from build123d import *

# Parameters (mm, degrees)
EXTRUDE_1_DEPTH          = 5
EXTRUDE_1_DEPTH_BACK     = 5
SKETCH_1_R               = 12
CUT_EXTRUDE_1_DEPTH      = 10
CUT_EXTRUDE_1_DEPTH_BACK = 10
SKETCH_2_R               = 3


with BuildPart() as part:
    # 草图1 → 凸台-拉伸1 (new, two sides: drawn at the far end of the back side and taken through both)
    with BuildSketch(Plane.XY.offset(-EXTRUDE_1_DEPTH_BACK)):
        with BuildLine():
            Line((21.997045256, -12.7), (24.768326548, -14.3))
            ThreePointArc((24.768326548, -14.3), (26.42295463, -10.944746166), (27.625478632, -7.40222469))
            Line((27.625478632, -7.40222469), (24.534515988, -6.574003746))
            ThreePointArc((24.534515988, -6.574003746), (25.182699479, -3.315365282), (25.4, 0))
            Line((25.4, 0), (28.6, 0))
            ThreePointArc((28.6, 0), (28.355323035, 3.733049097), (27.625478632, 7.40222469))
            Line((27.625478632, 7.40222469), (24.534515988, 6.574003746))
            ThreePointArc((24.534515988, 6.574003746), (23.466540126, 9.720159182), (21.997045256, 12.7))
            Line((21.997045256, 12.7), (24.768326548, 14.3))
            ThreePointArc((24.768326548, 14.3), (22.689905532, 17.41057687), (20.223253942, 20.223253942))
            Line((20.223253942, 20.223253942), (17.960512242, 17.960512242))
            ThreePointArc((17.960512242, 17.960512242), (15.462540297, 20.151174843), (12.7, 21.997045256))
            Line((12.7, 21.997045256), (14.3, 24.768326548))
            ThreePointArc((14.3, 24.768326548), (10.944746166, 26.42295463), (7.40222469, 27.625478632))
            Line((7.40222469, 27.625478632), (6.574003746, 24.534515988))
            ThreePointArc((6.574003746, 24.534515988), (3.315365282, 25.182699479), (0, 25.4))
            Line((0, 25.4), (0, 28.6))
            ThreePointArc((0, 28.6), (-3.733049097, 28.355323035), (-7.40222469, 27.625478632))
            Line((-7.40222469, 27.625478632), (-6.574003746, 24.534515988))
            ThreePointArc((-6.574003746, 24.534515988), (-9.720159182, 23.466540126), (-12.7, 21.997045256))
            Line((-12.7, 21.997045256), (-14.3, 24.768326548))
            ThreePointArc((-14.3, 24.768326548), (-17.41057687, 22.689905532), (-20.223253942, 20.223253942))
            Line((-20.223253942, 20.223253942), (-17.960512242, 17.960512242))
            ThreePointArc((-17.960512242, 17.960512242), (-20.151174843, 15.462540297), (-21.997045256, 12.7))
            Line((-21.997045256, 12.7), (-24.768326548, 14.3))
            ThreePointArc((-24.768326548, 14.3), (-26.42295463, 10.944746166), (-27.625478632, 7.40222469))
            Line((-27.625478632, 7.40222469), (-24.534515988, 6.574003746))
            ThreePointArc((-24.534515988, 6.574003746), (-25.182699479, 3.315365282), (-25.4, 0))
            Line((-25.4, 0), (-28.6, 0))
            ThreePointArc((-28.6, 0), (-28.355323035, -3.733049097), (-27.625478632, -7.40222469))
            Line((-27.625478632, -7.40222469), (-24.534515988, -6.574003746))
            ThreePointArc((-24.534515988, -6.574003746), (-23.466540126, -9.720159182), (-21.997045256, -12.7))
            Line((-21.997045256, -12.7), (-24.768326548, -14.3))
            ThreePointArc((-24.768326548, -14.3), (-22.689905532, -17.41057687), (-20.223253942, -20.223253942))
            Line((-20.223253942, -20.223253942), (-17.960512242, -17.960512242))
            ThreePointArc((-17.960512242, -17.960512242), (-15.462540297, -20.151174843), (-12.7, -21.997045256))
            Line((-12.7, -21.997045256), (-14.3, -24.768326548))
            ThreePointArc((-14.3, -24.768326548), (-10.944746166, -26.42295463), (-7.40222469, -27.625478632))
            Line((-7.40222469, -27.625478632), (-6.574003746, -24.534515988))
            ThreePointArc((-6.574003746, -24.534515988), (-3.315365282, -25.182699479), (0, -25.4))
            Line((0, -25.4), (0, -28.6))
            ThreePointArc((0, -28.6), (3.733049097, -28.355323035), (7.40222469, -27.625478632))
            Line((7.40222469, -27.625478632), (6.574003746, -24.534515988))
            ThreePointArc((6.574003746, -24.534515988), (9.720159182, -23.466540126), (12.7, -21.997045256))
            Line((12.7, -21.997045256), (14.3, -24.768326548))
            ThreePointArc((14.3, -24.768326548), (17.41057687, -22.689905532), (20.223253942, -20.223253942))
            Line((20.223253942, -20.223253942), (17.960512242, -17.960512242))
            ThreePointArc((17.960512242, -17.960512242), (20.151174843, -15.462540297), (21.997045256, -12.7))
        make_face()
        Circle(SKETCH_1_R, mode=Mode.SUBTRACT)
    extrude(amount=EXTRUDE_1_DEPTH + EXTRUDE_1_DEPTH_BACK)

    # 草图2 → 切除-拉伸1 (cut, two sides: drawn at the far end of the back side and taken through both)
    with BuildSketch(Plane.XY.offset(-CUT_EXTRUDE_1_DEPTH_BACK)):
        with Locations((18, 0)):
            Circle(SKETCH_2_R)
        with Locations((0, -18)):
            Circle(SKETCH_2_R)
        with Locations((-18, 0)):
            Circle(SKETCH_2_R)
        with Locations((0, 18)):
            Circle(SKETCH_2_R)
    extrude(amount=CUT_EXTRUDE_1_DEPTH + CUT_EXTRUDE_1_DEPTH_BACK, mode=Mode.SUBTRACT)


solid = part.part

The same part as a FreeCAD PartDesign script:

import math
import FreeCAD as App
import Part
import Sketcher
Q = App.Units.Quantity

doc = App.newDocument("Part")
body = doc.addObject("PartDesign::Body", "Body")

# Sketch on XY plane
sketch1 = body.newObject("Sketcher::SketchObject", "Sketch")
sketch1.AttachmentSupport = (doc.getObject("XY_Plane"), [""])
sketch1.MapMode = "FlatFace"
sketch1.addGeometry(Part.LineSegment(App.Vector(21.997045, -12.7, 0), App.Vector(24.768327, -14.3, 0)), False)
sketch1.addGeometry(Part.ArcOfCircle(Part.Circle(App.Vector(0, 0, 0), App.Vector(0, 0, 1), 28.6), math.radians(-30), math.radians(-15)), False)
sketch1.addGeometry(Part.LineSegment(App.Vector(27.625479, -7.402225, 0), App.Vector(24.534516, -6.574004, 0)), False)
sketch1.addGeometry(Part.ArcOfCircle(Part.Circle(App.Vector(0, 0, 0), App.Vector(0, 0, 1), 25.4), math.radians(-15), math.radians(0)), False)
sketch1.addGeometry(Part.LineSegment(App.Vector(25.4, 0, 0), App.Vector(28.6, 0, 0)), False)
sketch1.addGeometry(Part.ArcOfCircle(Part.Circle(App.Vector(0, 0, 0), App.Vector(0, 0, 1), 28.6), math.radians(0), math.radians(15)), False)
sketch1.addGeometry(Part.LineSegment(App.Vector(27.625479, 7.402225, 0), App.Vector(24.534516, 6.574004, 0)), False)
sketch1.addGeometry(Part.ArcOfCircle(Part.Circle(App.Vector(0, 0, 0), App.Vector(0, 0, 1), 25.4), math.radians(15), math.radians(30)), False)
sketch1.addGeometry(Part.LineSegment(App.Vector(21.997045, 12.7, 0), App.Vector(24.768327, 14.3, 0)), False)
sketch1.addGeometry(Part.ArcOfCircle(Part.Circle(App.Vector(0, 0, 0), App.Vector(0, 0, 1), 28.6), math.radians(30), math.radians(45)), False)
sketch1.addGeometry(Part.LineSegment(App.Vector(20.223254, 20.223254, 0), App.Vector(17.960512, 17.960512, 0)), False)
sketch1.addGeometry(Part.ArcOfCircle(Part.Circle(App.Vector(0, 0, 0), App.Vector(0, 0, 1), 25.4), math.radians(45), math.radians(60)), False)
sketch1.addGeometry(Part.LineSegment(App.Vector(12.7, 21.997045, 0), App.Vector(14.3, 24.768327, 0)), False)
sketch1.addGeometry(Part.ArcOfCircle(Part.Circle(App.Vector(0, 0, 0), App.Vector(0, 0, 1), 28.6), math.radians(60), math.radians(75)), False)
sketch1.addGeometry(Part.LineSegment(App.Vector(7.402225, 27.625479, 0), App.Vector(6.574004, 24.534516, 0)), False)
sketch1.addGeometry(Part.ArcOfCircle(Part.Circle(App.Vector(0, 0, 0), App.Vector(0, 0, 1), 25.4), math.radians(75), math.radians(90)), False)
sketch1.addGeometry(Part.LineSegment(App.Vector(0, 25.4, 0), App.Vector(0, 28.6, 0)), False)
sketch1.addGeometry(Part.ArcOfCircle(Part.Circle(App.Vector(0, 0, 0), App.Vector(0, 0, 1), 28.6), math.radians(90), math.radians(105)), False)
sketch1.addGeometry(Part.LineSegment(App.Vector(-7.402225, 27.625479, 0), App.Vector(-6.574004, 24.534516, 0)), False)
sketch1.addGeometry(Part.ArcOfCircle(Part.Circle(App.Vector(0, 0, 0), App.Vector(0, 0, 1), 25.4), math.radians(105), math.radians(120)), False)
sketch1.addGeometry(Part.LineSegment(App.Vector(-12.7, 21.997045, 0), App.Vector(-14.3, 24.768327, 0)), False)
sketch1.addGeometry(Part.ArcOfCircle(Part.Circle(App.Vector(0, 0, 0), App.Vector(0, 0, 1), 28.6), math.radians(120), math.radians(135)), False)
sketch1.addGeometry(Part.LineSegment(App.Vector(-20.223254, 20.223254, 0), App.Vector(-17.960512, 17.960512, 0)), False)
sketch1.addGeometry(Part.ArcOfCircle(Part.Circle(App.Vector(0, 0, 0), App.Vector(0, 0, 1), 25.4), math.radians(135), math.radians(150)), False)
sketch1.addGeometry(Part.LineSegment(App.Vector(-21.997045, 12.7, 0), App.Vector(-24.768327, 14.3, 0)), False)
sketch1.addGeometry(Part.ArcOfCircle(Part.Circle(App.Vector(0, 0, 0), App.Vector(0, 0, 1), 28.6), math.radians(150), math.radians(165)), False)
sketch1.addGeometry(Part.LineSegment(App.Vector(-27.625479, 7.402225, 0), App.Vector(-24.534516, 6.574004, 0)), False)
sketch1.addGeometry(Part.ArcOfCircle(Part.Circle(App.Vector(0, 0, 0), App.Vector(0, 0, 1), 25.4), math.radians(165), math.radians(180)), False)
sketch1.addGeometry(Part.LineSegment(App.Vector(-25.4, 0, 0), App.Vector(-28.6, 0, 0)), False)
sketch1.addGeometry(Part.ArcOfCircle(Part.Circle(App.Vector(0, 0, 0), App.Vector(0, 0, 1), 28.6), math.radians(-180), math.radians(-165)), False)
sketch1.addGeometry(Part.LineSegment(App.Vector(-27.625479, -7.402225, 0), App.Vector(-24.534516, -6.574004, 0)), False)
sketch1.addGeometry(Part.ArcOfCircle(Part.Circle(App.Vector(0, 0, 0), App.Vector(0, 0, 1), 25.4), math.radians(-165), math.radians(-150)), False)
sketch1.addGeometry(Part.LineSegment(App.Vector(-21.997045, -12.7, 0), App.Vector(-24.768327, -14.3, 0)), False)
sketch1.addGeometry(Part.ArcOfCircle(Part.Circle(App.Vector(0, 0, 0), App.Vector(0, 0, 1), 28.6), math.radians(-150), math.radians(-135)), False)
sketch1.addGeometry(Part.LineSegment(App.Vector(-20.223254, -20.223254, 0), App.Vector(-17.960512, -17.960512, 0)), False)
sketch1.addGeometry(Part.ArcOfCircle(Part.Circle(App.Vector(0, 0, 0), App.Vector(0, 0, 1), 25.4), math.radians(-135), math.radians(-120)), False)
sketch1.addGeometry(Part.LineSegment(App.Vector(-12.7, -21.997045, 0), App.Vector(-14.3, -24.768327, 0)), False)
sketch1.addGeometry(Part.ArcOfCircle(Part.Circle(App.Vector(0, 0, 0), App.Vector(0, 0, 1), 28.6), math.radians(-120), math.radians(-105)), False)
sketch1.addGeometry(Part.LineSegment(App.Vector(-7.402225, -27.625479, 0), App.Vector(-6.574004, -24.534516, 0)), False)
sketch1.addGeometry(Part.ArcOfCircle(Part.Circle(App.Vector(0, 0, 0), App.Vector(0, 0, 1), 25.4), math.radians(-105), math.radians(-90)), False)
sketch1.addGeometry(Part.LineSegment(App.Vector(0, -25.4, 0), App.Vector(0, -28.6, 0)), False)
sketch1.addGeometry(Part.ArcOfCircle(Part.Circle(App.Vector(0, 0, 0), App.Vector(0, 0, 1), 28.6), math.radians(-90), math.radians(-75)), False)
sketch1.addGeometry(Part.LineSegment(App.Vector(7.402225, -27.625479, 0), App.Vector(6.574004, -24.534516, 0)), False)
sketch1.addGeometry(Part.ArcOfCircle(Part.Circle(App.Vector(0, 0, 0), App.Vector(0, 0, 1), 25.4), math.radians(-75), math.radians(-60)), False)
sketch1.addGeometry(Part.LineSegment(App.Vector(12.7, -21.997045, 0), App.Vector(14.3, -24.768327, 0)), False)
sketch1.addGeometry(Part.ArcOfCircle(Part.Circle(App.Vector(0, 0, 0), App.Vector(0, 0, 1), 28.6), math.radians(-60), math.radians(-45)), False)
sketch1.addGeometry(Part.LineSegment(App.Vector(20.223254, -20.223254, 0), App.Vector(17.960512, -17.960512, 0)), False)
sketch1.addGeometry(Part.ArcOfCircle(Part.Circle(App.Vector(0, 0, 0), App.Vector(0, 0, 1), 25.4), math.radians(-45), math.radians(-30)), False)
sketch1.addGeometry(Part.Circle(App.Vector(0, 0, 0), App.Vector(0, 0, 1), 12), False)
sketch1.addConstraint(Sketcher.Constraint("Coincident", 0, 2, 1, 1))
sketch1.addConstraint(Sketcher.Constraint("Coincident", 1, 2, 2, 1))
sketch1.addConstraint(Sketcher.Constraint("Coincident", 2, 2, 3, 1))
sketch1.addConstraint(Sketcher.Constraint("Coincident", 3, 2, 4, 1))
sketch1.addConstraint(Sketcher.Constraint("Coincident", 4, 2, 5, 1))
sketch1.addConstraint(Sketcher.Constraint("Coincident", 5, 2, 6, 1))
sketch1.addConstraint(Sketcher.Constraint("Coincident", 6, 2, 7, 1))
sketch1.addConstraint(Sketcher.Constraint("Coincident", 7, 2, 8, 1))
sketch1.addConstraint(Sketcher.Constraint("Coincident", 8, 2, 9, 1))
sketch1.addConstraint(Sketcher.Constraint("Coincident", 9, 2, 10, 1))
sketch1.addConstraint(Sketcher.Constraint("Coincident", 10, 2, 11, 1))
sketch1.addConstraint(Sketcher.Constraint("Coincident", 11, 2, 12, 1))
sketch1.addConstraint(Sketcher.Constraint("Coincident", 12, 2, 13, 1))
sketch1.addConstraint(Sketcher.Constraint("Coincident", 13, 2, 14, 1))
sketch1.addConstraint(Sketcher.Constraint("Coincident", 14, 2, 15, 1))
sketch1.addConstraint(Sketcher.Constraint("Coincident", 15, 2, 16, 1))
sketch1.addConstraint(Sketcher.Constraint("Coincident", 16, 2, 17, 1))
sketch1.addConstraint(Sketcher.Constraint("Coincident", 17, 2, 18, 1))
sketch1.addConstraint(Sketcher.Constraint("Coincident", 18, 2, 19, 1))
sketch1.addConstraint(Sketcher.Constraint("Coincident", 19, 2, 20, 1))
sketch1.addConstraint(Sketcher.Constraint("Coincident", 20, 2, 21, 1))
sketch1.addConstraint(Sketcher.Constraint("Coincident", 21, 2, 22, 1))
sketch1.addConstraint(Sketcher.Constraint("Coincident", 22, 2, 23, 1))
sketch1.addConstraint(Sketcher.Constraint("Coincident", 23, 2, 24, 1))
sketch1.addConstraint(Sketcher.Constraint("Coincident", 24, 2, 25, 1))
sketch1.addConstraint(Sketcher.Constraint("Coincident", 25, 2, 26, 1))
sketch1.addConstraint(Sketcher.Constraint("Coincident", 26, 2, 27, 1))
sketch1.addConstraint(Sketcher.Constraint("Coincident", 27, 2, 28, 1))
sketch1.addConstraint(Sketcher.Constraint("Coincident", 28, 2, 29, 1))
sketch1.addConstraint(Sketcher.Constraint("Coincident", 29, 2, 30, 1))
sketch1.addConstraint(Sketcher.Constraint("Coincident", 30, 2, 31, 1))
sketch1.addConstraint(Sketcher.Constraint("Coincident", 31, 2, 32, 1))
sketch1.addConstraint(Sketcher.Constraint("Coincident", 32, 2, 33, 1))
sketch1.addConstraint(Sketcher.Constraint("Coincident", 33, 2, 34, 1))
sketch1.addConstraint(Sketcher.Constraint("Coincident", 34, 2, 35, 1))
sketch1.addConstraint(Sketcher.Constraint("Coincident", 35, 2, 36, 1))
sketch1.addConstraint(Sketcher.Constraint("Coincident", 36, 2, 37, 1))
sketch1.addConstraint(Sketcher.Constraint("Coincident", 37, 2, 38, 1))
sketch1.addConstraint(Sketcher.Constraint("Coincident", 38, 2, 39, 1))
sketch1.addConstraint(Sketcher.Constraint("Coincident", 39, 2, 40, 1))
sketch1.addConstraint(Sketcher.Constraint("Coincident", 40, 2, 41, 1))
sketch1.addConstraint(Sketcher.Constraint("Coincident", 41, 2, 42, 1))
sketch1.addConstraint(Sketcher.Constraint("Coincident", 42, 2, 43, 1))
sketch1.addConstraint(Sketcher.Constraint("Coincident", 43, 2, 44, 1))
sketch1.addConstraint(Sketcher.Constraint("Coincident", 44, 2, 45, 1))
sketch1.addConstraint(Sketcher.Constraint("Coincident", 45, 2, 46, 1))
sketch1.addConstraint(Sketcher.Constraint("Coincident", 46, 2, 47, 1))
sketch1.addConstraint(Sketcher.Constraint("Coincident", 47, 2, 0, 1))
sketch1.addConstraint(Sketcher.Constraint("Horizontal", 4))
sketch1.addConstraint(Sketcher.Constraint("Vertical", 16))
sketch1.addConstraint(Sketcher.Constraint("Horizontal", 28))
sketch1.addConstraint(Sketcher.Constraint("Vertical", 40))
sketch1.addConstraint(Sketcher.Constraint("Coincident", 1, 3, -1, 1))
sketch1.addConstraint(Sketcher.Constraint("Coincident", 3, 3, -1, 1))
sketch1.addConstraint(Sketcher.Constraint("Coincident", 5, 3, -1, 1))
sketch1.addConstraint(Sketcher.Constraint("Coincident", 7, 3, -1, 1))
sketch1.addConstraint(Sketcher.Constraint("Coincident", 9, 3, -1, 1))
sketch1.addConstraint(Sketcher.Constraint("Coincident", 11, 3, -1, 1))
sketch1.addConstraint(Sketcher.Constraint("Coincident", 13, 3, -1, 1))
sketch1.addConstraint(Sketcher.Constraint("Coincident", 15, 3, -1, 1))
sketch1.addConstraint(Sketcher.Constraint("Coincident", 17, 3, -1, 1))
sketch1.addConstraint(Sketcher.Constraint("Coincident", 19, 3, -1, 1))
sketch1.addConstraint(Sketcher.Constraint("Coincident", 21, 3, -1, 1))
sketch1.addConstraint(Sketcher.Constraint("Coincident", 23, 3, -1, 1))
sketch1.addConstraint(Sketcher.Constraint("Coincident", 25, 3, -1, 1))
sketch1.addConstraint(Sketcher.Constraint("Coincident", 27, 3, -1, 1))
sketch1.addConstraint(Sketcher.Constraint("Coincident", 29, 3, -1, 1))
sketch1.addConstraint(Sketcher.Constraint("Coincident", 31, 3, -1, 1))
sketch1.addConstraint(Sketcher.Constraint("Coincident", 33, 3, -1, 1))
sketch1.addConstraint(Sketcher.Constraint("Coincident", 35, 3, -1, 1))
sketch1.addConstraint(Sketcher.Constraint("Coincident", 37, 3, -1, 1))
sketch1.addConstraint(Sketcher.Constraint("Coincident", 39, 3, -1, 1))
sketch1.addConstraint(Sketcher.Constraint("Coincident", 41, 3, -1, 1))
sketch1.addConstraint(Sketcher.Constraint("Coincident", 43, 3, -1, 1))
sketch1.addConstraint(Sketcher.Constraint("Coincident", 45, 3, -1, 1))
sketch1.addConstraint(Sketcher.Constraint("Coincident", 47, 3, -1, 1))
sketch1.addConstraint(Sketcher.Constraint("Coincident", 48, 3, -1, 1))
sketch1.addConstraint(Sketcher.Constraint("Equal", 1, 5))
sketch1.addConstraint(Sketcher.Constraint("Equal", 3, 7))
sketch1.addConstraint(Sketcher.Constraint("Equal", 5, 9))
sketch1.addConstraint(Sketcher.Constraint("Equal", 7, 11))
sketch1.addConstraint(Sketcher.Constraint("Equal", 9, 13))
sketch1.addConstraint(Sketcher.Constraint("Equal", 11, 15))
sketch1.addConstraint(Sketcher.Constraint("Equal", 13, 17))
sketch1.addConstraint(Sketcher.Constraint("Equal", 15, 19))
sketch1.addConstraint(Sketcher.Constraint("Equal", 17, 21))
sketch1.addConstraint(Sketcher.Constraint("Equal", 19, 23))
sketch1.addConstraint(Sketcher.Constraint("Equal", 21, 25))
sketch1.addConstraint(Sketcher.Constraint("Equal", 23, 27))
sketch1.addConstraint(Sketcher.Constraint("Equal", 25, 29))
sketch1.addConstraint(Sketcher.Constraint("Equal", 27, 31))
sketch1.addConstraint(Sketcher.Constraint("Equal", 29, 33))
sketch1.addConstraint(Sketcher.Constraint("Equal", 31, 35))
sketch1.addConstraint(Sketcher.Constraint("Equal", 33, 37))
sketch1.addConstraint(Sketcher.Constraint("Equal", 35, 39))
sketch1.addConstraint(Sketcher.Constraint("Equal", 37, 41))
sketch1.addConstraint(Sketcher.Constraint("Equal", 39, 43))
sketch1.addConstraint(Sketcher.Constraint("Equal", 41, 45))
sketch1.addConstraint(Sketcher.Constraint("Equal", 43, 47))
sketch1.addConstraint(Sketcher.Constraint("PointOnObject", 3, 2, -1))
sketch1.addConstraint(Sketcher.Constraint("PointOnObject", 15, 2, -2))
sketch1.addConstraint(Sketcher.Constraint("PointOnObject", 27, 2, -1))
sketch1.addConstraint(Sketcher.Constraint("PointOnObject", 39, 2, -2))
sketch1.addConstraint(Sketcher.Constraint("Perpendicular", 0, 12))
sketch1.addConstraint(Sketcher.Constraint("Perpendicular", 2, 14))
sketch1.addConstraint(Sketcher.Constraint("Perpendicular", 6, 18))
sketch1.addConstraint(Sketcher.Constraint("Perpendicular", 8, 20))
sketch1.addConstraint(Sketcher.Constraint("Perpendicular", 10, 22))
sketch1.addConstraint(Sketcher.Constraint("Perpendicular", 12, 24))
sketch1.addConstraint(Sketcher.Constraint("Perpendicular", 14, 26))
sketch1.addConstraint(Sketcher.Constraint("Perpendicular", 18, 30))
sketch1.addConstraint(Sketcher.Constraint("Perpendicular", 20, 32))
sketch1.addConstraint(Sketcher.Constraint("Perpendicular", 22, 34))
sketch1.addConstraint(Sketcher.Constraint("Perpendicular", 24, 36))
sketch1.addConstraint(Sketcher.Constraint("Perpendicular", 26, 38))
sketch1.addConstraint(Sketcher.Constraint("Perpendicular", 30, 42))
sketch1.addConstraint(Sketcher.Constraint("Perpendicular", 32, 44))
sketch1.addConstraint(Sketcher.Constraint("Perpendicular", 34, 46))
sketch1.addConstraint(Sketcher.Constraint("Horizontal", 13, 2, 17, 2))
sketch1.addConstraint(Sketcher.Constraint("Horizontal", 14, 2, 18, 2))
sketch1.addConstraint(Sketcher.Constraint("Horizontal", 11, 2, 19, 2))
sketch1.addConstraint(Sketcher.Constraint("Horizontal", 12, 2, 20, 2))
sketch1.addConstraint(Sketcher.Constraint("Horizontal", 9, 2, 21, 2))
sketch1.addConstraint(Sketcher.Constraint("Horizontal", 10, 2, 22, 2))
sketch1.addConstraint(Sketcher.Constraint("Horizontal", 7, 2, 23, 2))
sketch1.addConstraint(Sketcher.Constraint("Horizontal", 5, 2, 25, 2))
sketch1.addConstraint(Sketcher.Constraint("Horizontal", 1, 2, 29, 2))
sketch1.addConstraint(Sketcher.Constraint("Horizontal", 0, 2, 32, 2))
sketch1.addConstraint(Sketcher.Constraint("Horizontal", 37, 2, 41, 2))
sketch1.addConstraint(Sketcher.Constraint("Horizontal", 35, 2, 43, 2))
sketch1.addConstraint(Sketcher.Constraint("Horizontal", 33, 2, 45, 2))
sketch1.addConstraint(Sketcher.Constraint("Vertical", 1, 2, 5, 2))
sketch1.addConstraint(Sketcher.Constraint("Vertical", 0, 2, 8, 2))
sketch1.addConstraint(Sketcher.Constraint("Vertical", 21, 2, 33, 2))
sketch1.addConstraint(Sketcher.Constraint("Vertical", 19, 2, 35, 2))
sketch1.addConstraint(Sketcher.Constraint("Vertical", 17, 2, 37, 2))
sketch1.addConstraint(Sketcher.Constraint("Diameter", 48, Q("24 mm")))
sketch1.addConstraint(Sketcher.Constraint("Radius", 1, Q("28.6 mm")))
sketch1.addConstraint(Sketcher.Constraint("Radius", 3, Q("25.4 mm")))
sketch1.addConstraint(Sketcher.Constraint("Angle", 0, Q("-30 deg")))
sketch1.addConstraint(Sketcher.Constraint("Angle", 2, Q("165 deg")))
sketch1.addConstraint(Sketcher.Constraint("DistanceY", 0, 2, -1, 1, Q("14.3 mm")))
sketch1.addConstraint(Sketcher.Constraint("DistanceX", -1, 1, 11, 2, Q("12.7 mm")))
sketch1.addConstraint(Sketcher.Constraint("DistanceX", -1, 1, 1, 2, Q("27.625479 mm")))
sketch1.addConstraint(Sketcher.Constraint("DistanceY", -1, 1, 13, 2, Q("27.625479 mm")))
sketch1.addConstraint(Sketcher.Constraint("DistanceX", -1, 1, 9, 2, Q("20.223254 mm")))
pad1 = body.newObject("PartDesign::Pad", "Pad")
pad1.Profile = sketch1
pad1.Type = "TwoLengths"
pad1.Length = 5
pad1.Length2 = 5

# Sketch on XY plane
sketch2 = body.newObject("Sketcher::SketchObject", "Sketch001")
sketch2.AttachmentSupport = (doc.getObject("XY_Plane"), [""])
sketch2.MapMode = "FlatFace"
sketch2.addGeometry(Part.Circle(App.Vector(18, 0, 0), App.Vector(0, 0, 1), 3), False)
sketch2.addGeometry(Part.Circle(App.Vector(0, -18, 0), App.Vector(0, 0, 1), 3), False)
sketch2.addGeometry(Part.Circle(App.Vector(-18, 0, 0), App.Vector(0, 0, 1), 3), False)
sketch2.addGeometry(Part.Circle(App.Vector(0, 18, 0), App.Vector(0, 0, 1), 3), False)
sketch2.addConstraint(Sketcher.Constraint("Equal", 0, 1))
sketch2.addConstraint(Sketcher.Constraint("Equal", 1, 2))
sketch2.addConstraint(Sketcher.Constraint("Equal", 2, 3))
sketch2.addConstraint(Sketcher.Constraint("Symmetric", 0, 3, 2, 3, -1, 1))
sketch2.addConstraint(Sketcher.Constraint("Symmetric", 1, 3, 3, 3, -1, 1))
sketch2.addConstraint(Sketcher.Constraint("PointOnObject", 0, 3, -1))
sketch2.addConstraint(Sketcher.Constraint("PointOnObject", 1, 3, -2))
sketch2.addConstraint(Sketcher.Constraint("Diameter", 0, Q("6 mm")))
sketch2.addConstraint(Sketcher.Constraint("DistanceX", -1, 1, 0, 3, Q("18 mm")))
sketch2.addConstraint(Sketcher.Constraint("DistanceY", 1, 3, -1, 1, Q("18 mm")))
pocket1 = body.newObject("PartDesign::Pocket", "Pocket")
pocket1.Profile = sketch2
pocket1.Type = "ThroughAll"
pocket1.Midplane = True

doc.recompute()
